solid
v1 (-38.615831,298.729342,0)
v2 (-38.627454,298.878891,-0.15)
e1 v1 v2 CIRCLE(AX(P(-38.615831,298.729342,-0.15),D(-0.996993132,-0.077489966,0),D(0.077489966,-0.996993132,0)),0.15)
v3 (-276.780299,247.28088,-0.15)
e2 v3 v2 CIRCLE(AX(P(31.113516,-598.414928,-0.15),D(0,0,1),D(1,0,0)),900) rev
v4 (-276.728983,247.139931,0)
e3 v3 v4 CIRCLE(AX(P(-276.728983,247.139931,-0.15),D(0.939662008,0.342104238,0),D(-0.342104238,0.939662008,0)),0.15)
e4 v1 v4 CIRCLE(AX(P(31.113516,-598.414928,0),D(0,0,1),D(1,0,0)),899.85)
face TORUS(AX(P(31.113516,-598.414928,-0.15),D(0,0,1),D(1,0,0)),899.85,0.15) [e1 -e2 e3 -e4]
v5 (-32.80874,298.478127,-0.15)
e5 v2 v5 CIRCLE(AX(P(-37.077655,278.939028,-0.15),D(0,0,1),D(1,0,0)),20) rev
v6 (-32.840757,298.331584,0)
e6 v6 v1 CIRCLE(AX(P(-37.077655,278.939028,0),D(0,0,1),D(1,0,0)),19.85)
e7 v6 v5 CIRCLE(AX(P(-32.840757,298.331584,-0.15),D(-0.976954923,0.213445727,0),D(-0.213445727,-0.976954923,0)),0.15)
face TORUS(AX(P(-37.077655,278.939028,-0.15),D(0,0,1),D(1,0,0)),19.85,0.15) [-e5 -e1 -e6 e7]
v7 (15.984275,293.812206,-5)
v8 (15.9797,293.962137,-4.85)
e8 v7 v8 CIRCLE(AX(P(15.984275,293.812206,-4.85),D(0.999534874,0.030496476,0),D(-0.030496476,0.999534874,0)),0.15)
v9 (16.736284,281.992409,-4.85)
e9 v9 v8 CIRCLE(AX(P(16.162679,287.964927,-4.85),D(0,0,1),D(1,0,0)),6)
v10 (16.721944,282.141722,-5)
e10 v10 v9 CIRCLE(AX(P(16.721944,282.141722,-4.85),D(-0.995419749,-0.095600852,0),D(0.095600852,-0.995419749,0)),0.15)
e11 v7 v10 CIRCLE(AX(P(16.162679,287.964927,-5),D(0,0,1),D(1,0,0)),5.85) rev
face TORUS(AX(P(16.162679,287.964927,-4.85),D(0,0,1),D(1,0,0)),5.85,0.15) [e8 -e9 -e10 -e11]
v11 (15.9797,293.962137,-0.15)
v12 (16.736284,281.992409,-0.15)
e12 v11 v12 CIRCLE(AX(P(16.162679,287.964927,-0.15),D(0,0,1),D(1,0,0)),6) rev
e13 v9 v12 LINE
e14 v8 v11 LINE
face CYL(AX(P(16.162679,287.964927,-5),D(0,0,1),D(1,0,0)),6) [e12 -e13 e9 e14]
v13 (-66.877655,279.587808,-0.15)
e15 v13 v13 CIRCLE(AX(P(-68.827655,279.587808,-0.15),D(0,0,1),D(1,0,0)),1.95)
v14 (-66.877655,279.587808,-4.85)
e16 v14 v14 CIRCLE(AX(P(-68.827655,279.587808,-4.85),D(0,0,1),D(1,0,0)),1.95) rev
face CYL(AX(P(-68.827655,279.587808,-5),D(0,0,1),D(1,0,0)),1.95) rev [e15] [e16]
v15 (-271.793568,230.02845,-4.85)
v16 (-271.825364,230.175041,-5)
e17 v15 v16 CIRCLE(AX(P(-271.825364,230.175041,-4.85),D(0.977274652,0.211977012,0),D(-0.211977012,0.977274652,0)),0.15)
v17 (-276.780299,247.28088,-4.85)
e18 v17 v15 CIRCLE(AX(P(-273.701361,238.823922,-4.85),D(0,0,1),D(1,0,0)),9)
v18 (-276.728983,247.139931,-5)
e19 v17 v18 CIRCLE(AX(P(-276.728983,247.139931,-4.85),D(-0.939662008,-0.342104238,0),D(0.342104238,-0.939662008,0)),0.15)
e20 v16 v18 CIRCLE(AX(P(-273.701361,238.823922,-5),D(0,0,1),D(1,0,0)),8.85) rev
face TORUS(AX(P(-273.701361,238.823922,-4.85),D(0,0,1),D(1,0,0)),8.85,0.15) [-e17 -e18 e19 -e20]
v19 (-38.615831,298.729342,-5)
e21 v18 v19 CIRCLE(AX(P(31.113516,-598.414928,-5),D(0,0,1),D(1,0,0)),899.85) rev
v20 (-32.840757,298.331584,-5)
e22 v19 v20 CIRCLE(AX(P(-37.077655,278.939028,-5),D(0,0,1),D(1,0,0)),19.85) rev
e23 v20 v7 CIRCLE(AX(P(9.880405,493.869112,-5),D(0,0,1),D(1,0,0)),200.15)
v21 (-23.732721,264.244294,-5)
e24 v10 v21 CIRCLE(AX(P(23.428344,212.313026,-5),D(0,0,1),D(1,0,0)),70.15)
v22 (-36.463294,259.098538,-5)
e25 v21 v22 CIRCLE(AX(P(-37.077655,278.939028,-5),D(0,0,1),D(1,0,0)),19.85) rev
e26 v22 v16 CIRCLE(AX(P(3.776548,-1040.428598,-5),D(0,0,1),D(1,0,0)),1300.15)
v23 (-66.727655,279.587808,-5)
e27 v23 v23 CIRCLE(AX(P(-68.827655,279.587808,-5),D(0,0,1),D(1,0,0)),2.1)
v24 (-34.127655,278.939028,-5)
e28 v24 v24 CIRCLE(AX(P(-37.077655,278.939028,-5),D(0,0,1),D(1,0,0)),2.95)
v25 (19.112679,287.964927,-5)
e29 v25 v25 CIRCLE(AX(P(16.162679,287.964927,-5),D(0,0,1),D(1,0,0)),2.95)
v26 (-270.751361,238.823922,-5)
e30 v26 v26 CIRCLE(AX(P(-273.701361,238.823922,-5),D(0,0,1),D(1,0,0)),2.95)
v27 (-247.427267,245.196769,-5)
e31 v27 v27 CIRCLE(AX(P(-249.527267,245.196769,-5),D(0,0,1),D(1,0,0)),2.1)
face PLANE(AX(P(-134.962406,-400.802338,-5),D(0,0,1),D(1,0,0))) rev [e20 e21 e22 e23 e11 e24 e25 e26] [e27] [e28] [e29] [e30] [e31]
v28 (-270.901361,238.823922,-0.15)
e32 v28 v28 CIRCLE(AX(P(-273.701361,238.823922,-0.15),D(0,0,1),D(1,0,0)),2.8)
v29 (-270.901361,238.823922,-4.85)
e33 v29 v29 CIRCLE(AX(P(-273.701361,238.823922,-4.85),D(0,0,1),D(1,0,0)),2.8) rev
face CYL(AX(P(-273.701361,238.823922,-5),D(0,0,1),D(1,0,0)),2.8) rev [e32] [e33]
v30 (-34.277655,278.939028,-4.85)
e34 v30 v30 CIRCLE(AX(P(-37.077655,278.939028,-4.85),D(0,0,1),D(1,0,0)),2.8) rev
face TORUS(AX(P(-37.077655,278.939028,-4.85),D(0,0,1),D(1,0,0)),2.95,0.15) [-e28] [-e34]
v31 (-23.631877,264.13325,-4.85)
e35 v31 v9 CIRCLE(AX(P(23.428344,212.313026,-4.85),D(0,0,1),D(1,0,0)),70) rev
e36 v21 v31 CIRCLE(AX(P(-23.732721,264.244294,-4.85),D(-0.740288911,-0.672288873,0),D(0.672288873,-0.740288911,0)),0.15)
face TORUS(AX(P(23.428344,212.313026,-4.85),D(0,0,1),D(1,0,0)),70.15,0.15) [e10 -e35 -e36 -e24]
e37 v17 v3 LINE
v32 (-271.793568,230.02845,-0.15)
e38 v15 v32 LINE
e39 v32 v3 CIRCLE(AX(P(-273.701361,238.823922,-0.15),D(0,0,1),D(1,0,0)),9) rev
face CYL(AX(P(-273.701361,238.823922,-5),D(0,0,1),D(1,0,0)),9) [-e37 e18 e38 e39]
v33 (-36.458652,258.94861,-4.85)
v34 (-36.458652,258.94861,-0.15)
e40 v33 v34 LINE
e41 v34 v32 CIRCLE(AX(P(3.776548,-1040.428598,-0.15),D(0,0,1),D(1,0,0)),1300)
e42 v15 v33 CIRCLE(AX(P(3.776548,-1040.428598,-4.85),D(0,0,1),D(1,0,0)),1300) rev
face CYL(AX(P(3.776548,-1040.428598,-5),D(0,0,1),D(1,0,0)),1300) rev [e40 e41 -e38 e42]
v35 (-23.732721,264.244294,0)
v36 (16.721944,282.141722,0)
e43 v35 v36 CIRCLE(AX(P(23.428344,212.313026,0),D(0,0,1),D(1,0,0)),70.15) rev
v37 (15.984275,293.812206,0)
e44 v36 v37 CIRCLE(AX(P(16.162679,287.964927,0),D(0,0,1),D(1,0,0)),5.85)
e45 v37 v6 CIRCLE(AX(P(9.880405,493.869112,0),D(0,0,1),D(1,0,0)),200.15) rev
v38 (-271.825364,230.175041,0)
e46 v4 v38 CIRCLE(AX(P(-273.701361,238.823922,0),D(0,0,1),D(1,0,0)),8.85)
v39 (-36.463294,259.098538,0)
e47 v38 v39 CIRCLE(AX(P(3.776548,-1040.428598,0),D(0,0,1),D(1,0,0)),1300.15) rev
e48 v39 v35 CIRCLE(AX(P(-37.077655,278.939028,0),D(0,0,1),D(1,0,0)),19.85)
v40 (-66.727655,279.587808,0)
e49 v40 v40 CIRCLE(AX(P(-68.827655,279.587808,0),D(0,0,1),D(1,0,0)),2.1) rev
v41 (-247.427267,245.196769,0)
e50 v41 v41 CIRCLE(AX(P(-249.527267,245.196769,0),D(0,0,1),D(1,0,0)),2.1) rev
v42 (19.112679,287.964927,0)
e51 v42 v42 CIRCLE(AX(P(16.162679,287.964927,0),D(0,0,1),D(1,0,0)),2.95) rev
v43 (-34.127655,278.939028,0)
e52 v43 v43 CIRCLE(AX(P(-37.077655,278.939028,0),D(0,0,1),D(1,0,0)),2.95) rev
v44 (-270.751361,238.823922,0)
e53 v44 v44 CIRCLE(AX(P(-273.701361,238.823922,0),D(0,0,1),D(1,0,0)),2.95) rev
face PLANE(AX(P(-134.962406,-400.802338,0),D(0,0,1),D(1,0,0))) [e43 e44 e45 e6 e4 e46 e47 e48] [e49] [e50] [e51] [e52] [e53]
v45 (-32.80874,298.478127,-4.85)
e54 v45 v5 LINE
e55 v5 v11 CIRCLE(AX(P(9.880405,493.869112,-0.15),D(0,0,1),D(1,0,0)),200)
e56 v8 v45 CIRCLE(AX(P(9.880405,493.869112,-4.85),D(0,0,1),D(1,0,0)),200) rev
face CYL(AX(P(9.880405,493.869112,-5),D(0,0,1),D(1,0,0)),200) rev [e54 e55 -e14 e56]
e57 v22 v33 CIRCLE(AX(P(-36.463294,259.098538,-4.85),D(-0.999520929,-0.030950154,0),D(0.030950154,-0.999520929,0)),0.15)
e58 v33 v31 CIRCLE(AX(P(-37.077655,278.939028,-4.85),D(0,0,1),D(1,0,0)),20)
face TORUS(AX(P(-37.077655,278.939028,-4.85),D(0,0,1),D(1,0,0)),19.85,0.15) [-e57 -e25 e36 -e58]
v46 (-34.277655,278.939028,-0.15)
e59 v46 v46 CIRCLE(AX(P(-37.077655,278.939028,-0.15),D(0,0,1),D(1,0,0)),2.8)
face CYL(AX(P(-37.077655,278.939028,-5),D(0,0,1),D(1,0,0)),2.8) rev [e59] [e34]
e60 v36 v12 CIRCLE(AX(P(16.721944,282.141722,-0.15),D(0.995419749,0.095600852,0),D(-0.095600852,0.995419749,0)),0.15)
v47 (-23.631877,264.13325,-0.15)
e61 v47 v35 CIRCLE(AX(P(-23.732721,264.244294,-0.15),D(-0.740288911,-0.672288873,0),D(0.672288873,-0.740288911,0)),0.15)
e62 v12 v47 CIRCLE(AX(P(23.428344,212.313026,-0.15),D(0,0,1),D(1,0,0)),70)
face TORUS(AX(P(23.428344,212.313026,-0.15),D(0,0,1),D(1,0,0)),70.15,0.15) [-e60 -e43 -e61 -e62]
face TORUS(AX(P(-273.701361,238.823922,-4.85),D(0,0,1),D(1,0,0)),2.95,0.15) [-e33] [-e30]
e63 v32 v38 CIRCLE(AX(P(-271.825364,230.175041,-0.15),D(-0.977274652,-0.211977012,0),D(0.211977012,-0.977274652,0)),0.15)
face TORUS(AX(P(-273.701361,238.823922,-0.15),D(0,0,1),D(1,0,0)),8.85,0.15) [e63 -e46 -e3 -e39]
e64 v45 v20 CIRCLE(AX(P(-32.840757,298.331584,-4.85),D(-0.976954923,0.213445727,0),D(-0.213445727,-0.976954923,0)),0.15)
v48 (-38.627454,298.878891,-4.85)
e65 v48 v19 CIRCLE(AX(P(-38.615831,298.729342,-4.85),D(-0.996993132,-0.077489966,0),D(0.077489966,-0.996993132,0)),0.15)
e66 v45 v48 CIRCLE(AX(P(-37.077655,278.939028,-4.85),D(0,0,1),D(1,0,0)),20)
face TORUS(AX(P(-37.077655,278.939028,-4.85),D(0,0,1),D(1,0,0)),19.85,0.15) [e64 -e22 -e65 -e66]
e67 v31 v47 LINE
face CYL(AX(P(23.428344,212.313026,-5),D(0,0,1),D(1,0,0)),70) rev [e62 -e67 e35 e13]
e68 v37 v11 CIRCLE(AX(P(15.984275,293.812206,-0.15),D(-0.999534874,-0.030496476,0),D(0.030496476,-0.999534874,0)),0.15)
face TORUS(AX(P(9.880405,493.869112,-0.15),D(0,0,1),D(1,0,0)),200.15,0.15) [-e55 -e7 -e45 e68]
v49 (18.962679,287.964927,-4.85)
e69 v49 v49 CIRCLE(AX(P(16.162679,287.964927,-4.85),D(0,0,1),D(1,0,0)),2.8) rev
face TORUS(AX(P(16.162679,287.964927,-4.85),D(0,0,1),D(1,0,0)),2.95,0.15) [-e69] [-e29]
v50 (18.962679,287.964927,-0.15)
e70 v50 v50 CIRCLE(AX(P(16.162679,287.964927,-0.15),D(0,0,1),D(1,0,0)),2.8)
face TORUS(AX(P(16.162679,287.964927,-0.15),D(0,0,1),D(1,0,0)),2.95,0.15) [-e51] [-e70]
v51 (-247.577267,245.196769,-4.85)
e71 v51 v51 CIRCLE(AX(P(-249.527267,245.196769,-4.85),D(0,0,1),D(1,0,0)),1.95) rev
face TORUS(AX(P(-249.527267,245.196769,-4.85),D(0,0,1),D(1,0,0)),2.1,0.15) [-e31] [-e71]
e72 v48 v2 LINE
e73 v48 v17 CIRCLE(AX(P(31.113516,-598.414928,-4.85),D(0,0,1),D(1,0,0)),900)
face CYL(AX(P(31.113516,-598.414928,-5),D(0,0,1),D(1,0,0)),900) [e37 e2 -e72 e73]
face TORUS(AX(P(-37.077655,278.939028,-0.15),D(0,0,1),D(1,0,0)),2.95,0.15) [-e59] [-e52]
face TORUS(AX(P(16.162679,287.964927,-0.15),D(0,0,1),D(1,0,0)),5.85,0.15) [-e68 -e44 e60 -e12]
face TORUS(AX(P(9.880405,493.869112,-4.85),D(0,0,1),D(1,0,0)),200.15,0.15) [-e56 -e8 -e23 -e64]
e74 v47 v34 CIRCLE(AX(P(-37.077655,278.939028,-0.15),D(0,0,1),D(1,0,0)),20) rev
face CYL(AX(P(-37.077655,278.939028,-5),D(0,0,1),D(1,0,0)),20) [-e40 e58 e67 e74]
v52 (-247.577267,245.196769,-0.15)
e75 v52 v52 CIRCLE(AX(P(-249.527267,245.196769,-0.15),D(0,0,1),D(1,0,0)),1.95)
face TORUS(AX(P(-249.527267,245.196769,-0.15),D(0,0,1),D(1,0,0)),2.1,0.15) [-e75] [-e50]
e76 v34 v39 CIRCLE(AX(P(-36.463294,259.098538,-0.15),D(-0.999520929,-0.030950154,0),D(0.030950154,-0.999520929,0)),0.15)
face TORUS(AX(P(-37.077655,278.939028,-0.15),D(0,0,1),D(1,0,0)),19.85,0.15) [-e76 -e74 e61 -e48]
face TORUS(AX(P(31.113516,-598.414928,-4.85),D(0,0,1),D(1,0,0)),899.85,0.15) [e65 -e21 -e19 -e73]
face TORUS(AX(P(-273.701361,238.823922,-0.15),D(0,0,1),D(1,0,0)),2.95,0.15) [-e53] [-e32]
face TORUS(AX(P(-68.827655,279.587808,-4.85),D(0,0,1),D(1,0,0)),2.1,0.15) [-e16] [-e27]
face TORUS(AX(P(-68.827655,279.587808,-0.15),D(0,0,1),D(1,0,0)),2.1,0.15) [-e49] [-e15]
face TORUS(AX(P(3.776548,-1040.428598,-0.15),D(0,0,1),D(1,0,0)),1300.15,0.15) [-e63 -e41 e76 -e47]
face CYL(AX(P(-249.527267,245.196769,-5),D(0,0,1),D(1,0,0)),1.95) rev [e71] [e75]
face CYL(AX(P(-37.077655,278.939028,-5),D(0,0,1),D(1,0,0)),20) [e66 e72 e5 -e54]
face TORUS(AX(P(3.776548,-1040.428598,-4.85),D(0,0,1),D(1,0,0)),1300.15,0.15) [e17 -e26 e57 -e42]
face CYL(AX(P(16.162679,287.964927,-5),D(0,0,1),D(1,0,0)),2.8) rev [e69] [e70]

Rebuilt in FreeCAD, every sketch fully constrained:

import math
import FreeCAD as App
import Part
import Sketcher
from FreeCAD import Vector
Q = App.Units.Quantity


def edges_at(feature, points):
    """Names of the edges that pass closest to the given points."""
    edges = feature.Shape.Edges
    near = lambda p: min(range(len(edges)), key=lambda i: edges[i].distToShape(Part.Vertex(*p))[0])
    return sorted({f"Edge{near(p) + 1}" for p in points})

doc = App.newDocument("Part")
body = doc.addObject("PartDesign::Body", "Body")

# Sketch on XY plane
sketch1 = doc.addObject("Sketcher::SketchObject", "Sketch")
body.addObject(sketch1)
sketch1.AttachmentSupport = (doc.XY_Plane, [""])
sketch1.MapMode = "FlatFace"
sketch1.addGeometry([
    Part.ArcOfCircle(Part.Circle(Vector(31.1, -598.4, 0), Vector(0, 0, 1), 900), math.radians(94.44), math.radians(110.01)),  # 0
    Part.ArcOfCircle(Part.Circle(Vector(-273.7, 238.8, 0), Vector(0, 0, 1), 9), math.radians(110), math.radians(282)),  # 1
    Part.ArcOfCircle(Part.Circle(Vector(3.8, -1040.4, 0), Vector(0, 0, 1), 1300), math.radians(91.77), math.radians(102.24)),  # 2
    Part.ArcOfCircle(Part.Circle(Vector(-37.1, 278.9, 0), Vector(0, 0, 1), 20), math.radians(-88), math.radians(-48)),  # 3
    Part.ArcOfCircle(Part.Circle(Vector(23.4, 212.3, 0), Vector(0, 0, 1), 70), math.radians(95), math.radians(132)),  # 4
    Part.ArcOfCircle(Part.Circle(Vector(16.2, 288, 0), Vector(0, 0, 1), 6), math.radians(-85), math.radians(92)),  # 5
    Part.ArcOfCircle(Part.Circle(Vector(9.9, 493.9, 0), Vector(0, 0, 1), 200), math.radians(-102.32), math.radians(-88.25)),  # 6
    Part.ArcOfCircle(Part.Circle(Vector(-37.1, 278.9, 0), Vector(0, 0, 1), 20), math.radians(77.68), math.radians(94.44)),  # 7
    Part.Circle(Vector(-273.7, 238.8, 0), Vector(0, 0, 1), 2.8),  # 8
    Part.Circle(Vector(-249.5, 245.2, 0), Vector(0, 0, 1), 1.9),  # 9
    Part.Circle(Vector(-37.1, 278.9, 0), Vector(0, 0, 1), 2.8),  # 10
    Part.Circle(Vector(16.2, 288, 0), Vector(0, 0, 1), 2.8),  # 11
    Part.Circle(Vector(-68.8, 279.6, 0), Vector(0, 0, 1), 1.9),  # 12
], False)
sketch1.addConstraint([
    Sketcher.Constraint("Tangent", 0, 2, 1, 1),
    Sketcher.Constraint("Tangent", 1, 2, 2, 2),
    Sketcher.Constraint("Tangent", 2, 1, 3, 1),
    Sketcher.Constraint("Tangent", 3, 2, 4, 2),
    Sketcher.Constraint("Tangent", 4, 1, 5, 1),
    Sketcher.Constraint("Tangent", 5, 2, 6, 2),
    Sketcher.Constraint("Tangent", 6, 1, 7, 1),
    Sketcher.Constraint("Tangent", 7, 2, 0, 1),
    Sketcher.Constraint("Coincident", 7, 3, 3, 3),
    Sketcher.Constraint("Coincident", 8, 3, 1, 3),
    Sketcher.Constraint("Coincident", 10, 3, 3, 3),
    Sketcher.Constraint("Coincident", 11, 3, 5, 3),
    Sketcher.Constraint("Equal", 3, 7),
    Sketcher.Constraint("Equal", 8, 10),
    Sketcher.Constraint("Equal", 10, 11),
    Sketcher.Constraint("Equal", 9, 12),
    Sketcher.Constraint("Radius", 0, Q("900 mm")),
    Sketcher.Constraint("Radius", 1, Q("9 mm")),
    Sketcher.Constraint("Radius", 2, Q("1300 mm")),
    Sketcher.Constraint("Radius", 3, Q("20 mm")),
    Sketcher.Constraint("Radius", 4, Q("70 mm")),
    Sketcher.Constraint("Radius", 5, Q("6 mm")),
    Sketcher.Constraint("Radius", 6, Q("200 mm")),
    Sketcher.Constraint("Diameter", 8, Q("5.6 mm")),
    Sketcher.Constraint("Diameter", 9, Q("3.9 mm")),
    Sketcher.Constraint("DistanceX", 12, 3, 7, 3, Q("31.75 mm")),
    Sketcher.Constraint("DistanceX", 3, 3, 4, 3, Q("60.505999 mm")),
    Sketcher.Constraint("DistanceY", 2, 3, -1, 1, Q("1040.428598 mm")),
    Sketcher.Constraint("DistanceX", -1, 1, 5, 2, Q("15.9797 mm")),
    Sketcher.Constraint("DistanceY", 3, 3, 5, 3, Q("9.025899 mm")),
    Sketcher.Constraint("DistanceX", 1, 2, 9, 3, Q("22.266301 mm")),
    Sketcher.Constraint("DistanceY", 2, 1, 12, 3, Q("20.639198 mm")),
    Sketcher.Constraint("DistanceX", 1, 3, -1, 1, Q("273.701361 mm")),
    Sketcher.Constraint("DistanceY", -1, 1, 1, 3, Q("238.823922 mm")),
    Sketcher.Constraint("DistanceY", -1, 1, 9, 3, Q("245.196769 mm")),
])
pad1 = doc.addObject("PartDesign::Pad", "Pad")
body.addObject(pad1)
pad1.Profile = sketch1
pad1.Length = 5
pad1.Reversed = True
doc.recompute()

fillet = doc.addObject("PartDesign::Fillet", "Fillet")
body.addObject(fillet)
fillet.Base = (pad1, edges_at(pad1, [
    (-4.892, 276.328, 0),
    (-29.583, 260.396, 0),
    (-154.787, 249.865, 0),
    (-282.347, 236.325, 0),
    (-29.583, 260.396, -5),
    (-4.892, 276.328, -5),
    (22.151, 288.343, -5),
    (-276.501, 238.824, -5),
    (-276.501, 238.824, 0),
    (-8.553, 294.72, -5),
    (-251.477, 245.197, -5),
    (-251.477, 245.197, 0),
    (-35.703, 298.892, -5),
    (-70.778, 279.588, -5),
    (-70.778, 279.588, 0),
    (-159.458, 281.177, -5),
    (-39.878, 278.939, -5),
    (-39.878, 278.939, 0),
    (13.363, 287.965, -5),
    (13.363, 287.965, 0),
    (-282.347, 236.325, -5),
    (-159.458, 281.177, 0),
    (-154.787, 249.865, -5),
    (-35.703, 298.892, 0),
    (-8.553, 294.72, 0),
    (22.151, 288.343, 0),
]))
fillet.Radius = 0.15

doc.recompute()
